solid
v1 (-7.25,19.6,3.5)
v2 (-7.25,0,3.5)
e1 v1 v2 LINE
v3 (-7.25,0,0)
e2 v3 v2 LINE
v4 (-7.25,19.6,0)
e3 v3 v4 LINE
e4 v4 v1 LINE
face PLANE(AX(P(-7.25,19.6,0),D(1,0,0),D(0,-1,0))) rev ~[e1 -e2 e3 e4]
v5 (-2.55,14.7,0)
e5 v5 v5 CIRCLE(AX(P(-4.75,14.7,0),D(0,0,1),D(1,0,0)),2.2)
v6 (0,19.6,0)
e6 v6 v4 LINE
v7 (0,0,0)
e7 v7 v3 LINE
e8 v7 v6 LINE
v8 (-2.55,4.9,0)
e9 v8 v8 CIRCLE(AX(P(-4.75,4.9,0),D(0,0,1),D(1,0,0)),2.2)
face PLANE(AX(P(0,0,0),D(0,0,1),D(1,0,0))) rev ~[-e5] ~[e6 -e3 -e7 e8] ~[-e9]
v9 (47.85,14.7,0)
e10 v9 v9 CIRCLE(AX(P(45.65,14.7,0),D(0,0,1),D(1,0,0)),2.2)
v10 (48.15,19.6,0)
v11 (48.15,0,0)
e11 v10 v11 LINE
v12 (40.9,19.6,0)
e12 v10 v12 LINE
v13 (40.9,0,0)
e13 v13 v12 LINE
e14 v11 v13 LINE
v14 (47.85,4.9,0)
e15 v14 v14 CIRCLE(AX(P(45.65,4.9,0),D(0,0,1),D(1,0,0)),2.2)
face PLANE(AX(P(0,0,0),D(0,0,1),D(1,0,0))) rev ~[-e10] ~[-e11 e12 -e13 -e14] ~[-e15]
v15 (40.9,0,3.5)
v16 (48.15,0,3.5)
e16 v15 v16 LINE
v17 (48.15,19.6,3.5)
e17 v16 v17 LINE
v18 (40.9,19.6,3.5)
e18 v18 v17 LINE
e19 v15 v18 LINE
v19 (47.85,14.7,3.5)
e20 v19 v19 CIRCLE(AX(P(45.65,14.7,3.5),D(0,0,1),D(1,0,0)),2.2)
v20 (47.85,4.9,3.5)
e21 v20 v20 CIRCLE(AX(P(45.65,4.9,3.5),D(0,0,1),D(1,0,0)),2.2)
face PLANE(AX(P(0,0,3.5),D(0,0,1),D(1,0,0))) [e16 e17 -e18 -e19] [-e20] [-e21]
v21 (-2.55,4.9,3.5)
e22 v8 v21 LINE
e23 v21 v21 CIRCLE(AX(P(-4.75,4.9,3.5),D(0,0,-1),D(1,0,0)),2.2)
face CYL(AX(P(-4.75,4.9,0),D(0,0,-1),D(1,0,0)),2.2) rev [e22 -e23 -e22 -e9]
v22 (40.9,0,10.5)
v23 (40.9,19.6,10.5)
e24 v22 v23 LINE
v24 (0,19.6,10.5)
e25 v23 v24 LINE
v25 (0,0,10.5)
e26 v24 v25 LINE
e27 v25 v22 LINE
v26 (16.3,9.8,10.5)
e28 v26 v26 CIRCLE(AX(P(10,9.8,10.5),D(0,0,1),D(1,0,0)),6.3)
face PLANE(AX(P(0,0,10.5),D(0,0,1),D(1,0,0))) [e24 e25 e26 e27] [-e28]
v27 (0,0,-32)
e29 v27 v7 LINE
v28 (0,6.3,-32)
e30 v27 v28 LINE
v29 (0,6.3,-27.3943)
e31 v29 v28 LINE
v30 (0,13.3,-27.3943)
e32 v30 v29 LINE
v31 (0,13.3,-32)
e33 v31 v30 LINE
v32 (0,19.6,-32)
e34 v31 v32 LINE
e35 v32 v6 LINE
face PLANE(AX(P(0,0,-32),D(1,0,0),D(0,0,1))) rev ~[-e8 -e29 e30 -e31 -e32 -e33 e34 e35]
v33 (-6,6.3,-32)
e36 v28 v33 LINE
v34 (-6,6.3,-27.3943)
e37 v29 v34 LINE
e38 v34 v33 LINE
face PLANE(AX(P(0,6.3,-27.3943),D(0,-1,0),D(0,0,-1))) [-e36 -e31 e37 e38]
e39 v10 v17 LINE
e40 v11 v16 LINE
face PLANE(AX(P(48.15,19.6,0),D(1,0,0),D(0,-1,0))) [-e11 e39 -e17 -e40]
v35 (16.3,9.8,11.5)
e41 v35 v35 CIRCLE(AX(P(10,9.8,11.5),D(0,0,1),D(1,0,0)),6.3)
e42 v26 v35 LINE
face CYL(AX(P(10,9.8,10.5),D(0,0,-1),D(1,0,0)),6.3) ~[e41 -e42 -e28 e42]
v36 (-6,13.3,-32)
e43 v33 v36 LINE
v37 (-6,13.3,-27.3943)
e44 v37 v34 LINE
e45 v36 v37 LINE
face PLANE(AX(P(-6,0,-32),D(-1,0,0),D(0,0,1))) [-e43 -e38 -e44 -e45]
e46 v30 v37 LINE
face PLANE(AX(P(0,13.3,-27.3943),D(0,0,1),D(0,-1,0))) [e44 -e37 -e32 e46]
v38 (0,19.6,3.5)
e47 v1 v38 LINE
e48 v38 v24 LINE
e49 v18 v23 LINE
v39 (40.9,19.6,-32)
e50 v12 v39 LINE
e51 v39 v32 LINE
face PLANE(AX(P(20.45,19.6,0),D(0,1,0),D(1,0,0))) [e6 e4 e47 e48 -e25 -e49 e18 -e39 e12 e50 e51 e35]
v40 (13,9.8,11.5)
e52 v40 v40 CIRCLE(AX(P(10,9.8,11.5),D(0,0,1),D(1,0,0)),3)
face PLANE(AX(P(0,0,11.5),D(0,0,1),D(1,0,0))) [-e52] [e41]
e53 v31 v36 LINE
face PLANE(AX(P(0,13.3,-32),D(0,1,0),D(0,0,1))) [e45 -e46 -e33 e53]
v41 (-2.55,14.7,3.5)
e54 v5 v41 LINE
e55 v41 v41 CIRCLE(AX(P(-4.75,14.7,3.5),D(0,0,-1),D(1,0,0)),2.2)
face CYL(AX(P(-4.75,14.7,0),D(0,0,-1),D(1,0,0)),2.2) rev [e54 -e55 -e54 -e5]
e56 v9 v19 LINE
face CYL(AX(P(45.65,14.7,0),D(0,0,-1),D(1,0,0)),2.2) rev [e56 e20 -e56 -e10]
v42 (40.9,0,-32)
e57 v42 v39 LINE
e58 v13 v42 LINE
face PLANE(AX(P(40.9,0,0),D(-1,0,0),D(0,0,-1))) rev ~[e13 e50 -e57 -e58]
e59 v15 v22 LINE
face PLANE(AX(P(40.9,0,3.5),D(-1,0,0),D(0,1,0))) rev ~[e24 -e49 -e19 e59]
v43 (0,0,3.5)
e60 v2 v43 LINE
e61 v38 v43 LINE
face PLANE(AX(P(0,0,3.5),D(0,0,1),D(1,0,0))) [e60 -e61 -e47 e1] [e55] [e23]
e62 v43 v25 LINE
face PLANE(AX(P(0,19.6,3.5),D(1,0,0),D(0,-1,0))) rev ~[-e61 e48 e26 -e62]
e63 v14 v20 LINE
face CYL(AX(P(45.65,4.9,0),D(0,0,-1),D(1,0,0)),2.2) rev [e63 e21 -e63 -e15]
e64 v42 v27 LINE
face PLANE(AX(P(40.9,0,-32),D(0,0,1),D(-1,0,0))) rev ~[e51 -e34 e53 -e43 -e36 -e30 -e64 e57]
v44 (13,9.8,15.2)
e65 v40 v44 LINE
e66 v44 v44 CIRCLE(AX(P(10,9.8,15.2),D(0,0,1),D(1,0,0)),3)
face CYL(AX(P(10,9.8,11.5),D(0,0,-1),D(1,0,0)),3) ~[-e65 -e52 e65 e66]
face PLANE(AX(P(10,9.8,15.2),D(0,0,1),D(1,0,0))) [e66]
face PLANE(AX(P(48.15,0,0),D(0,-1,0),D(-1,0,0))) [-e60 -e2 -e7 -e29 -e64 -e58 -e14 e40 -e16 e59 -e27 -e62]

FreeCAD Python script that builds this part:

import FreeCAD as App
import Part
import Sketcher

V = App.Vector
Q = App.Units.Quantity

doc = App.newDocument("Part")
params = doc.addObject("Spreadsheet::Sheet", "Params")
for row, (alias, value) in enumerate([
    ("sketch1_height", "32 mm"),
    ("sketch1_width", "40.9 mm"),
    ("pad1_length", "19.6 mm"),
    ("sketch2_diameter", "4.4 mm"),
    ("sketch2_width", "55.4 mm"),
    ("sketch2_height", "19.6 mm"),
    ("pad2_length", "3.5 mm"),
    ("sketch3_width", "40.9 mm"),
    ("sketch3_height", "19.6 mm"),
    ("pad3_length", "7 mm"),
    ("sketch4_diameter", "12.6 mm"),
    ("pad4_length", "1 mm"),
    ("sketch5_diameter", "6 mm"),
    ("pad5_length", "3.7 mm"),
    ("sketch6_width", "7 mm"),
    ("pad6_length", "6 mm"),
], start=1):
    params.set(f"A{row}", alias)
    params.set(f"B{row}", "=" + value)
    params.setAlias(f"B{row}", alias)

body = doc.addObject("PartDesign::Body", "Body")

sketch1 = body.newObject("Sketcher::SketchObject", "Sketch")
sketch1.AttachmentSupport = (doc.getObject("XZ_Plane"), [""])
sketch1.MapMode = "FlatFace"
sketch1.addGeometry(Part.LineSegment(V(0, -32, 0), V(0, 0, 0)), False)
sketch1.addGeometry(Part.LineSegment(V(0, 0, 0), V(40.9, 0, 0)), False)
sketch1.addGeometry(Part.LineSegment(V(40.9, 0, 0), V(40.9, -32, 0)), False)
sketch1.addGeometry(Part.LineSegment(V(40.9, -32, 0), V(0, -32, 0)), False)
sketch1.addConstraint(Sketcher.Constraint("Coincident", 0, 2, 1, 1))
sketch1.addConstraint(Sketcher.Constraint("Coincident", 1, 2, 2, 1))
sketch1.addConstraint(Sketcher.Constraint("Coincident", 2, 2, 3, 1))
sketch1.addConstraint(Sketcher.Constraint("Coincident", 3, 2, 0, 1))
sketch1.addConstraint(Sketcher.Constraint("Vertical", 0))
sketch1.addConstraint(Sketcher.Constraint("Horizontal", 1))
sketch1.addConstraint(Sketcher.Constraint("Vertical", 2))
sketch1.addConstraint(Sketcher.Constraint("Horizontal", 3))
sketch1.addConstraint(Sketcher.Constraint("Coincident", 0, 2, -1, 1))
sketch1.addConstraint(Sketcher.Constraint("DistanceY", 0, 1, 0, 2, Q("32 mm")))
sketch1.addConstraint(Sketcher.Constraint("DistanceX", 1, 1, 1, 2, Q("40.9 mm")))
sketch1.setExpression("Constraints[9]", "Params.sketch1_height")
sketch1.setExpression("Constraints[10]", "Params.sketch1_width")
pad1 = body.newObject("PartDesign::Pad", "Pad")
pad1.Profile = sketch1
pad1.setExpression("Length", "Params.pad1_length")
pad1.Reversed = True

sketch2 = body.newObject("Sketcher::SketchObject", "Sketch001")
sketch2.AttachmentSupport = (doc.getObject("XY_Plane"), [""])
sketch2.MapMode = "FlatFace"
sketch2.addGeometry(Part.LineSegment(V(-7.25, 19.6, 0), V(-7.25, 0, 0)), False)
sketch2.addGeometry(Part.LineSegment(V(-7.25, 0, 0), V(48.15, 0, 0)), False)
sketch2.addGeometry(Part.LineSegment(V(48.15, 0, 0), V(48.15, 19.6, 0)), False)
sketch2.addGeometry(Part.LineSegment(V(48.15, 19.6, 0), V(-7.25, 19.6, 0)), False)
sketch2.addGeometry(Part.Circle(V(45.65, 14.7, 0), V(0, 0, 1), 2.2), False)
sketch2.addGeometry(Part.Circle(V(45.65, 4.9, 0), V(0, 0, 1), 2.2), False)
sketch2.addGeometry(Part.Circle(V(-4.75, 14.7, 0), V(0, 0, 1), 2.2), False)
sketch2.addGeometry(Part.Circle(V(-4.75, 4.9, 0), V(0, 0, 1), 2.2), False)
sketch2.addConstraint(Sketcher.Constraint("Coincident", 0, 2, 1, 1))
sketch2.addConstraint(Sketcher.Constraint("Coincident", 1, 2, 2, 1))
sketch2.addConstraint(Sketcher.Constraint("Coincident", 2, 2, 3, 1))
sketch2.addConstraint(Sketcher.Constraint("Coincident", 3, 2, 0, 1))
sketch2.addConstraint(Sketcher.Constraint("Vertical", 0))
sketch2.addConstraint(Sketcher.Constraint("Horizontal", 1))
sketch2.addConstraint(Sketcher.Constraint("Vertical", 2))
sketch2.addConstraint(Sketcher.Constraint("Horizontal", 3))
sketch2.addConstraint(Sketcher.Constraint("Equal", 4, 5))
sketch2.addConstraint(Sketcher.Constraint("Equal", 5, 6))
sketch2.addConstraint(Sketcher.Constraint("Equal", 6, 7))
sketch2.addConstraint(Sketcher.Constraint("PointOnObject", 0, 2, -1))
sketch2.addConstraint(Sketcher.Constraint("Horizontal", 4, 3, 6, 3))
sketch2.addConstraint(Sketcher.Constraint("Horizontal", 5, 3, 7, 3))
sketch2.addConstraint(Sketcher.Constraint("Vertical", 4, 3, 5, 3))
sketch2.addConstraint(Sketcher.Constraint("Vertical", 6, 3, 7, 3))
sketch2.addConstraint(Sketcher.Constraint("Diameter", 4, Q("4.4 mm")))
sketch2.addConstraint(Sketcher.Constraint("DistanceX", 1, 1, 1, 2, Q("55.4 mm")))
sketch2.addConstraint(Sketcher.Constraint("DistanceY", 0, 2, 0, 1, Q("19.6 mm")))
sketch2.addConstraint(Sketcher.Constraint("DistanceY", 5, 3, 4, 3, Q("9.8 mm")))
sketch2.addConstraint(Sketcher.Constraint("DistanceY", -1, 1, 4, 3, Q("14.7 mm")))
sketch2.addConstraint(Sketcher.Constraint("DistanceX", 6, 3, 4, 3, Q("50.4 mm")))
sketch2.addConstraint(Sketcher.Constraint("DistanceX", 0, 2, 7, 3, Q("2.5 mm")))
sketch2.addConstraint(Sketcher.Constraint("DistanceX", -1, 1, 4, 3, Q("45.65 mm")))
sketch2.setExpression("Constraints[16]", "Params.sketch2_diameter")
sketch2.setExpression("Constraints[17]", "Params.sketch2_width")
sketch2.setExpression("Constraints[18]", "Params.sketch2_height")
pad2 = body.newObject("PartDesign::Pad", "Pad001")
pad2.Profile = sketch2
pad2.setExpression("Length", "Params.pad2_length")

sketch3 = body.newObject("Sketcher::SketchObject", "Sketch002")
sketch3.AttachmentSupport = (doc.getObject("XY_Plane"), [""])
sketch3.MapMode = "FlatFace"
sketch3.AttachmentOffset = App.Placement(V(0, 0, 3.5), App.Rotation())
sketch3.addGeometry(Part.LineSegment(V(0, 19.6, 0), V(0, 0, 0)), False)
sketch3.addGeometry(Part.LineSegment(V(0, 0, 0), V(40.9, 0, 0)), False)
sketch3.addGeometry(Part.LineSegment(V(40.9, 0, 0), V(40.9, 19.6, 0)), False)
sketch3.addGeometry(Part.LineSegment(V(40.9, 19.6, 0), V(0, 19.6, 0)), False)
sketch3.addConstraint(Sketcher.Constraint("Coincident", 0, 2, 1, 1))
sketch3.addConstraint(Sketcher.Constraint("Coincident", 1, 2, 2, 1))
sketch3.addConstraint(Sketcher.Constraint("Coincident", 2, 2, 3, 1))
sketch3.addConstraint(Sketcher.Constraint("Coincident", 3, 2, 0, 1))
sketch3.addConstraint(Sketcher.Constraint("Vertical", 0))
sketch3.addConstraint(Sketcher.Constraint("Horizontal", 1))
sketch3.addConstraint(Sketcher.Constraint("Vertical", 2))
sketch3.addConstraint(Sketcher.Constraint("Horizontal", 3))
sketch3.addConstraint(Sketcher.Constraint("Coincident", 0, 2, -1, 1))
sketch3.addConstraint(Sketcher.Constraint("DistanceX", 1, 1, 1, 2, Q("40.9 mm")))
sketch3.addConstraint(Sketcher.Constraint("DistanceY", 0, 2, 0, 1, Q("19.6 mm")))
sketch3.setExpression("Constraints[9]", "Params.sketch3_width")
sketch3.setExpression("Constraints[10]", "Params.sketch3_height")
pad3 = body.newObject("PartDesign::Pad", "Pad002")
pad3.Profile = sketch3
pad3.setExpression("Length", "Params.pad3_length")

sketch4 = body.newObject("Sketcher::SketchObject", "Sketch003")
sketch4.AttachmentSupport = (doc.getObject("XY_Plane"), [""])
sketch4.MapMode = "FlatFace"
sketch4.AttachmentOffset = App.Placement(V(0, 0, 10.5), App.Rotation())
sketch4.addGeometry(Part.Circle(V(10, 9.8, 0), V(0, 0, 1), 6.3), False)
sketch4.addConstraint(Sketcher.Constraint("Diameter", 0, Q("12.6 mm")))
sketch4.addConstraint(Sketcher.Constraint("DistanceX", -1, 1, 0, 3, Q("10 mm")))
sketch4.addConstraint(Sketcher.Constraint("DistanceY", -1, 1, 0, 3, Q("9.8 mm")))
sketch4.setExpression("Constraints[0]", "Params.sketch4_diameter")
pad4 = body.newObject("PartDesign::Pad", "Pad003")
pad4.Profile = sketch4
pad4.setExpression("Length", "Params.pad4_length")

sketch5 = body.newObject("Sketcher::SketchObject", "Sketch004")
sketch5.AttachmentSupport = (doc.getObject("XY_Plane"), [""])
sketch5.MapMode = "FlatFace"
sketch5.AttachmentOffset = App.Placement(V(0, 0, 11.5), App.Rotation())
sketch5.addGeometry(Part.Circle(V(10, 9.8, 0), V(0, 0, 1), 3), False)
sketch5.addConstraint(Sketcher.Constraint("Diameter", 0, Q("6 mm")))
sketch5.addConstraint(Sketcher.Constraint("DistanceX", -1, 1, 0, 3, Q("10 mm")))
sketch5.addConstraint(Sketcher.Constraint("DistanceY", -1, 1, 0, 3, Q("9.8 mm")))
sketch5.setExpression("Constraints[0]", "Params.sketch5_diameter")
pad5 = body.newObject("PartDesign::Pad", "Pad004")
pad5.Profile = sketch5
pad5.setExpression("Length", "Params.pad5_length")

sketch6 = body.newObject("Sketcher::SketchObject", "Sketch005")
sketch6.AttachmentSupport = (doc.getObject("YZ_Plane"), [""])
sketch6.MapMode = "FlatFace"
sketch6.addGeometry(Part.LineSegment(V(13.3, -32, 0), V(6.3, -32, 0)), False)
sketch6.addGeometry(Part.LineSegment(V(6.3, -32, 0), V(6.3, -27.3943, 0)), False)
sketch6.addGeometry(Part.LineSegment(V(6.3, -27.3943, 0), V(13.3, -27.3943, 0)), False)
sketch6.addGeometry(Part.LineSegment(V(13.3, -27.3943, 0), V(13.3, -32, 0)), False)
sketch6.addConstraint(Sketcher.Constraint("Coincident", 0, 2, 1, 1))
sketch6.addConstraint(Sketcher.Constraint("Coincident", 1, 2, 2, 1))
sketch6.addConstraint(Sketcher.Constraint("Coincident", 2, 2, 3, 1))
sketch6.addConstraint(Sketcher.Constraint("Coincident", 3, 2, 0, 1))
sketch6.addConstraint(Sketcher.Constraint("Horizontal", 0))
sketch6.addConstraint(Sketcher.Constraint("Vertical", 1))
sketch6.addConstraint(Sketcher.Constraint("Horizontal", 2))
sketch6.addConstraint(Sketcher.Constraint("Vertical", 3))
sketch6.addConstraint(Sketcher.Constraint("DistanceX", 0, 2, 0, 1, Q("7 mm")))
sketch6.addConstraint(Sketcher.Constraint("DistanceX", -1, 1, 0, 2, Q("6.3 mm")))
sketch6.addConstraint(Sketcher.Constraint("DistanceY", 0, 2, -1, 1, Q("32 mm")))
sketch6.addConstraint(Sketcher.Constraint("DistanceY", 1, 1, 1, 2, Q("4.6057 mm")))
sketch6.setExpression("Constraints[8]", "Params.sketch6_width")
pad6 = body.newObject("PartDesign::Pad", "Pad005")
pad6.Profile = sketch6
pad6.setExpression("Length", "Params.pad6_length")
pad6.Reversed = True

doc.recompute()
